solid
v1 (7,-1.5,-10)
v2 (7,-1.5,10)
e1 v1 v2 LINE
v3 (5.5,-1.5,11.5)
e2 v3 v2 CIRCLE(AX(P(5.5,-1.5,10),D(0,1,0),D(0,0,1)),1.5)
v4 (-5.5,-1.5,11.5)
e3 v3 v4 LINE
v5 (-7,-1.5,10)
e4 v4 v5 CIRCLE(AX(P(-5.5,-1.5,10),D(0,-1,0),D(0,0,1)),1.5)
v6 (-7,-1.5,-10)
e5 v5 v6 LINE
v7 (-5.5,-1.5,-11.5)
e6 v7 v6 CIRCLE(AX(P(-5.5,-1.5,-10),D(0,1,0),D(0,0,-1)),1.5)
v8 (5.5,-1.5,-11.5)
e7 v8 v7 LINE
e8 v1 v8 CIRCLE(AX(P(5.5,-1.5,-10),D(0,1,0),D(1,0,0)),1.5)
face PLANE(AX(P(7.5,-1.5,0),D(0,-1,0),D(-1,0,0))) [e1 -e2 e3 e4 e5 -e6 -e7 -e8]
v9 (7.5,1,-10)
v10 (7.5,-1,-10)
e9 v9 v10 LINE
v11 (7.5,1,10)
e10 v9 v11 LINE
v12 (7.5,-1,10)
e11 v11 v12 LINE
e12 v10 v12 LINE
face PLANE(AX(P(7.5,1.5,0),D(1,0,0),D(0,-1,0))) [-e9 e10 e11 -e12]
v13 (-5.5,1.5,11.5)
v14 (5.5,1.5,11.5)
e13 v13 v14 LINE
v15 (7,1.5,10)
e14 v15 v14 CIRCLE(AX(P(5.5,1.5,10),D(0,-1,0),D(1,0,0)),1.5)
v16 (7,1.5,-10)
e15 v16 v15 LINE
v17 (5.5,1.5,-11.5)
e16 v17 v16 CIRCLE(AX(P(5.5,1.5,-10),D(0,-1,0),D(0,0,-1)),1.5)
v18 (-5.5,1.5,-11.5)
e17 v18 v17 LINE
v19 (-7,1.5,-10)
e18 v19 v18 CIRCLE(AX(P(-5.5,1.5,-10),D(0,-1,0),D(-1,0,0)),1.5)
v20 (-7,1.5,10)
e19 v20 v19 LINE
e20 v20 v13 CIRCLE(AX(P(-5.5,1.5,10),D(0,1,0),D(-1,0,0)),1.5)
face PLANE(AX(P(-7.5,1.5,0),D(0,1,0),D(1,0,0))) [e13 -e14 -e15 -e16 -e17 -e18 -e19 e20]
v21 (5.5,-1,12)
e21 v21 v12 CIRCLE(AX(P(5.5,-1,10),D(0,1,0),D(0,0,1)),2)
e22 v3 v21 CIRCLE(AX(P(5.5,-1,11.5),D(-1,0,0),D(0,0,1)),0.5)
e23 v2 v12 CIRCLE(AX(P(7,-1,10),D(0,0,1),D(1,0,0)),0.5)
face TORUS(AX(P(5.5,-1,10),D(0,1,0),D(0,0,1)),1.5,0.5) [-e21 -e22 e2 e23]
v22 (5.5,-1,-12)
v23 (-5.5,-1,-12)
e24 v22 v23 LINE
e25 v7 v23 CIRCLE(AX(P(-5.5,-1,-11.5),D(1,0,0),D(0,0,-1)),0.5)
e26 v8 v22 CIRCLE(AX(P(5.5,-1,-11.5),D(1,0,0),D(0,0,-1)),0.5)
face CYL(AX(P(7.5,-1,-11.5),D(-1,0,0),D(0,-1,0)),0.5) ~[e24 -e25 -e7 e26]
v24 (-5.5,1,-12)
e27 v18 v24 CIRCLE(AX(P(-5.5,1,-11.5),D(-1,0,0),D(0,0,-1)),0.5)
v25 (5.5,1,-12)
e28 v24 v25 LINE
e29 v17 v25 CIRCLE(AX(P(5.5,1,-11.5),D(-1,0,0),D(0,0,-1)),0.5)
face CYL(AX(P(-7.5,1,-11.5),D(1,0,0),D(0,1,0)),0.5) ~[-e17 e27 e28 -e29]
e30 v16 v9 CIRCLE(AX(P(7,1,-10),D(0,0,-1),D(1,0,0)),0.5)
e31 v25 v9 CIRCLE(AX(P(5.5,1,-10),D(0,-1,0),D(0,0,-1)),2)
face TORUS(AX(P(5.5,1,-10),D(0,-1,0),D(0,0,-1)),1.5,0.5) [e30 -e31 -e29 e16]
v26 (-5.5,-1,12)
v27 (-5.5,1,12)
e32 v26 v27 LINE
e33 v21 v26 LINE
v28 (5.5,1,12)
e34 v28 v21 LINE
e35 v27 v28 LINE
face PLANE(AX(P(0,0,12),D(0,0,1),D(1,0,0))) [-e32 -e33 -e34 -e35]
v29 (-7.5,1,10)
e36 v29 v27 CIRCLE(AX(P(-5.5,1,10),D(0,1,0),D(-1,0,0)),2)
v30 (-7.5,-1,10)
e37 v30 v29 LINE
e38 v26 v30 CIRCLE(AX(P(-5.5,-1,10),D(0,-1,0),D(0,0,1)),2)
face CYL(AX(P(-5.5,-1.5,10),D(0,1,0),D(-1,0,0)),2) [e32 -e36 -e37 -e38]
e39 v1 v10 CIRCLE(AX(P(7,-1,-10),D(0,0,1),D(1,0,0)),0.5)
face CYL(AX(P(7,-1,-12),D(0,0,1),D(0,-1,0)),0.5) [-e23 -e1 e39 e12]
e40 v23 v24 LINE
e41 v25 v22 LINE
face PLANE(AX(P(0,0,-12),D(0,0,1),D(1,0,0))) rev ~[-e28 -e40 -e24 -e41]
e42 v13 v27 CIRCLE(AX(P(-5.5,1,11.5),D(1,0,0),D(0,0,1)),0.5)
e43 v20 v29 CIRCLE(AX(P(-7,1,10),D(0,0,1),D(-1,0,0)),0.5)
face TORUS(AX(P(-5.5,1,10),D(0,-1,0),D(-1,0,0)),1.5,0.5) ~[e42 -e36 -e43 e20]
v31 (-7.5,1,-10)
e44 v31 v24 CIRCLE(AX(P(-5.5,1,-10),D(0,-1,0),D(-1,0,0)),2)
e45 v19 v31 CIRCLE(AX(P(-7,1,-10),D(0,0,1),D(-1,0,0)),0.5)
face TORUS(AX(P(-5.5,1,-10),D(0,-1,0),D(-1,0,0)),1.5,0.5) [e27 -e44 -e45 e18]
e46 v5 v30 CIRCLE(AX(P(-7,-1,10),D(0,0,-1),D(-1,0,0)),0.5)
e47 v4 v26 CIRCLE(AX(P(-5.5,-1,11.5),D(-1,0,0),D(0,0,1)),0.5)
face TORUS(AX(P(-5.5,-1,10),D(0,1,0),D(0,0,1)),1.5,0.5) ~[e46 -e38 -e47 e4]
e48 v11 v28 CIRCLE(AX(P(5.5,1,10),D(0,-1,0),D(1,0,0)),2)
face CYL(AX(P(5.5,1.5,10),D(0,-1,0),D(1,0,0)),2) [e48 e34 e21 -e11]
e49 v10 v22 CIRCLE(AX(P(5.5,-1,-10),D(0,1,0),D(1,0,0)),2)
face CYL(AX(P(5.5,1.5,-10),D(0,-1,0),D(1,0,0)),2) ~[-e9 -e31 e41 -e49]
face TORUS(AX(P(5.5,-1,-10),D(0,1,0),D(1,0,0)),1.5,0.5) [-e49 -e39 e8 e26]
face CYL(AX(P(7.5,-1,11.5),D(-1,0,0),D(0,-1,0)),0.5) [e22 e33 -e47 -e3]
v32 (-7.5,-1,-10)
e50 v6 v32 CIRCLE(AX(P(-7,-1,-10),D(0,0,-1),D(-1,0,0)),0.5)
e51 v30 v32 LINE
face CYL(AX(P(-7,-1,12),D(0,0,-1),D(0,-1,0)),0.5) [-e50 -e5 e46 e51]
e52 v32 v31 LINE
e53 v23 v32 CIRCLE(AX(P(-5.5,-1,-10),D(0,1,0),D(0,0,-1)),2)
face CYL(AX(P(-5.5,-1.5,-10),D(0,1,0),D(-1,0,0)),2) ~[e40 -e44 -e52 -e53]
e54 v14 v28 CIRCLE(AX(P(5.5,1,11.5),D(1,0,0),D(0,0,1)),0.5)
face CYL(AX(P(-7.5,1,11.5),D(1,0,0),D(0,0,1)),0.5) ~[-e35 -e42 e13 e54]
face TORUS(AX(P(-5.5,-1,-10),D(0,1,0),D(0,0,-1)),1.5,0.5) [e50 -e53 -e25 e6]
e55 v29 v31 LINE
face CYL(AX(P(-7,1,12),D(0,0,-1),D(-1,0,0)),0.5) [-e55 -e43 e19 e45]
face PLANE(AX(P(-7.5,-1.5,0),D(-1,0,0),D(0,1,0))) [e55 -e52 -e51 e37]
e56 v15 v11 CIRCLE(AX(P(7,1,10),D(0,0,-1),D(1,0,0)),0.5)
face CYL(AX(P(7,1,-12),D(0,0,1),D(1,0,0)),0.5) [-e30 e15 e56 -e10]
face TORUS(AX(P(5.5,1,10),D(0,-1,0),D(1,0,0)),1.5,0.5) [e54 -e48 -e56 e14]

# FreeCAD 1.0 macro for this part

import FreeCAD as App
import Part
import Sketcher
Q = App.Units.Quantity


def edges_at(feature, points):
    """Names of the edges that pass closest to the given points."""
    edges = feature.Shape.Edges
    near = lambda p: min(range(len(edges)), key=lambda i: edges[i].distToShape(Part.Vertex(*p))[0])
    return sorted({f"Edge{near(p) + 1}" for p in points})


def add_polygon(sketch, points):
    """Adds a closed chain of lines whose ends are joined by coincident constraints."""
    first, n = sketch.GeometryCount, len(points)
    for a, b in zip(points, points[1:] + points[:1]):
        sketch.addGeometry(Part.LineSegment(App.Vector(*a, 0), App.Vector(*b, 0)), False)
    for i in range(n):
        sketch.addConstraint(Sketcher.Constraint("Coincident", first + i, 2, first + (i + 1) % n, 1))

doc = App.newDocument("Part")
body = doc.addObject("PartDesign::Body", "Body")

sketch1 = doc.addObject("Sketcher::SketchObject", "Sketch")
body.addObject(sketch1)
sketch1.AttachmentSupport = (doc.XY_Plane, [""])
sketch1.MapMode = "FlatFace"
add_polygon(sketch1, [(-7.5, -1.5), (7.5, -1.5), (7.5, 1.5), (-7.5, 1.5)])
sketch1.addConstraint([
    Sketcher.Constraint("Horizontal", 0),
    Sketcher.Constraint("Vertical", 1),
    Sketcher.Constraint("Horizontal", 2),
    Sketcher.Constraint("Vertical", 3),
    Sketcher.Constraint("Symmetric", 0, 2, 2, 2, -1, 1),
    Sketcher.Constraint("DistanceX", 0, 1, 0, 2, Q("15 mm")),
    Sketcher.Constraint("DistanceY", 1, 1, 1, 2, Q("3 mm")),
])
pad1 = doc.addObject("PartDesign::Pad", "Pad")
body.addObject(pad1)
pad1.Profile = sketch1
pad1.Length = 24
pad1.Midplane = True
doc.recompute()

fillet = doc.addObject("PartDesign::Fillet", "Fillet")
body.addObject(fillet)
fillet.Base = (pad1, edges_at(pad1, [
    (7.5, 0, 12),
    (-7.5, 0, 12),
    (-7.5, 0, -12),
    (7.5, 0, -12),
]))
fillet.Radius = 2
doc.recompute()

fillet2 = doc.addObject("PartDesign::Fillet", "Fillet001")
body.addObject(fillet2)
fillet2.Base = (fillet, edges_at(fillet, [
    (-7.5, 1.5, 0),
    (0, 1.5, -12),
    (7.5, 1.5, 0),
    (0, 1.5, 12),
    (0, -1.5, 12),
    (7.5, -1.5, 0),
    (0, -1.5, -12),
    (-7.5, -1.5, 0),
]))
fillet2.Radius = 0.5

doc.recompute()
